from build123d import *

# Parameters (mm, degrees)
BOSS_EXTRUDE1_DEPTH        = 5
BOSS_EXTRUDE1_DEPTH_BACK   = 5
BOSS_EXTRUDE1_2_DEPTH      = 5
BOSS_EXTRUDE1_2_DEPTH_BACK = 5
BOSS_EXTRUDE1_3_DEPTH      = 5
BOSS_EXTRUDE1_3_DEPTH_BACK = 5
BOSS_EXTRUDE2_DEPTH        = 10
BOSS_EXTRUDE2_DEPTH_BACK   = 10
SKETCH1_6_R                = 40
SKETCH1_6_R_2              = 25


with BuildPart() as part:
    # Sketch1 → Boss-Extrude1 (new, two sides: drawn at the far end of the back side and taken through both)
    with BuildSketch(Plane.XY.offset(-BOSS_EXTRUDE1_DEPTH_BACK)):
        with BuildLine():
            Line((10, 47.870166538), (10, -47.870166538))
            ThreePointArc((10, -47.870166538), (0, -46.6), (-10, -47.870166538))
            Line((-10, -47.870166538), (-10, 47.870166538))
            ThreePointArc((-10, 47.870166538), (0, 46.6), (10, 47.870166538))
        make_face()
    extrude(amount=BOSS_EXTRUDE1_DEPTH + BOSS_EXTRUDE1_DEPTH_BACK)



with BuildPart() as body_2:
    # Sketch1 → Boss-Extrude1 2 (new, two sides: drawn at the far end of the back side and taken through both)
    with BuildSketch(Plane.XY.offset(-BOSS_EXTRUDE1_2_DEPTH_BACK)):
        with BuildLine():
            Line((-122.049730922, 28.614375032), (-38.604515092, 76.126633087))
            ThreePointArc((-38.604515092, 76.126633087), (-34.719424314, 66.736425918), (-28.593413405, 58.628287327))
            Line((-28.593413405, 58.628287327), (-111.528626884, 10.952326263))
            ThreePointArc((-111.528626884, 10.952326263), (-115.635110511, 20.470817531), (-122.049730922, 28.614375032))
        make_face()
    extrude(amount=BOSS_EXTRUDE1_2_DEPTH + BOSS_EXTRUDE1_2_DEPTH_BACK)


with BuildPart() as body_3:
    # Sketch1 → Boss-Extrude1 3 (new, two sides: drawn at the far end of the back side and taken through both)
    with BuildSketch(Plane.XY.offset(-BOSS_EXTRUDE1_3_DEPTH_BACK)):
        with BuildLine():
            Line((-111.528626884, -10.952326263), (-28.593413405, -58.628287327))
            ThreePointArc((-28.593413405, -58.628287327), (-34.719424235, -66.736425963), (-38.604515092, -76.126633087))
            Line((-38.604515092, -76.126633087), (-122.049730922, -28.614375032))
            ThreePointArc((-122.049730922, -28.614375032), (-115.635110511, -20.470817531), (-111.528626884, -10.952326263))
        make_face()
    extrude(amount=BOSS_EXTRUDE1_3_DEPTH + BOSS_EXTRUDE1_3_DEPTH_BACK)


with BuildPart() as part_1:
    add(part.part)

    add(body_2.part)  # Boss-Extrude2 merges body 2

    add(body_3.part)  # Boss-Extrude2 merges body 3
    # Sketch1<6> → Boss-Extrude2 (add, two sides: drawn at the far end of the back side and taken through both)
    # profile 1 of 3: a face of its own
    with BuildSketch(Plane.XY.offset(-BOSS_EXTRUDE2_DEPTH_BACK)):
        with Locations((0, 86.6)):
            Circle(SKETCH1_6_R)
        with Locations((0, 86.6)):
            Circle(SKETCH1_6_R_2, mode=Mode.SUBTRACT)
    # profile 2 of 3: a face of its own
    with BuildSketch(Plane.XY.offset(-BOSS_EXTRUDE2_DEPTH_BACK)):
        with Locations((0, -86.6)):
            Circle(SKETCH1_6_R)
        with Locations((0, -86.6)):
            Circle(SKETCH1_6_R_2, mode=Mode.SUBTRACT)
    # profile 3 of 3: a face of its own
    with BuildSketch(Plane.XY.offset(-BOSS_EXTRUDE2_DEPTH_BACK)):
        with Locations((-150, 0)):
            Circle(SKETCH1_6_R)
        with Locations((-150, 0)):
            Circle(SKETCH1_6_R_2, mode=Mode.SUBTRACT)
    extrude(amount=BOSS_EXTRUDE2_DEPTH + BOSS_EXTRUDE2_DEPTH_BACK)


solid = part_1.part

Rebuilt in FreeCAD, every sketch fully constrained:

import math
import FreeCAD as App
import Part
import Sketcher
Q = App.Units.Quantity

doc = App.newDocument("Part")
body = doc.addObject("PartDesign::Body", "Body")

sketch1 = doc.addObject("Sketcher::SketchObject", "Sketch")
body.addObject(sketch1)
sketch1.AttachmentSupport = (doc.XY_Plane, [""])
sketch1.MapMode = "FlatFace"
sketch1.addGeometry([
    Part.LineSegment(App.Vector(10, -47.870167, 0), App.Vector(10, 47.870167, 0)),
    Part.ArcOfCircle(Part.Circle(App.Vector(0, 86.6, 0), App.Vector(0, 0, 1), 40), math.radians(-104.477512), math.radians(-75.522488)),
    Part.LineSegment(App.Vector(-10, 47.870167, 0), App.Vector(-10, -47.870167, 0)),
    Part.ArcOfCircle(Part.Circle(App.Vector(0, -86.6, 0), App.Vector(0, 0, 1), 40), math.radians(75.522488), math.radians(104.477512)),
], False)
sketch1.addConstraint([
    Sketcher.Constraint("Coincident", 0, 2, 1, 2),
    Sketcher.Constraint("Coincident", 1, 1, 2, 1),
    Sketcher.Constraint("Coincident", 2, 2, 3, 2),
    Sketcher.Constraint("Coincident", 3, 1, 0, 1),
    Sketcher.Constraint("Vertical", 0),
    Sketcher.Constraint("Vertical", 2),
    Sketcher.Constraint("Equal", 1, 3),
    Sketcher.Constraint("Symmetric", 1, 3, 3, 3, -1, 1),
    Sketcher.Constraint("Symmetric", 0, 2, 1, 1, -2),
    Sketcher.Constraint("Radius", 1, Q("40 mm")),
    Sketcher.Constraint("DistanceX", -1, 1, 0, 2, Q("10 mm")),
    Sketcher.Constraint("DistanceY", -1, 1, 1, 3, Q("86.6 mm")),
])
pad1 = doc.addObject("PartDesign::Pad", "Pad")
body.addObject(pad1)
pad1.Profile = sketch1
pad1.Type = "TwoLengths"
pad1.Length = 5
pad1.Length2 = 5
body2 = doc.addObject("PartDesign::Body", "Body001")

sketch2 = doc.addObject("Sketcher::SketchObject", "Sketch001")
body2.addObject(sketch2)
sketch2.AttachmentSupport = (doc.getObject("XY_Plane001"), [""])
sketch2.MapMode = "FlatFace"
sketch2.addGeometry([
    Part.LineSegment(App.Vector(-38.604515, 76.126633, 0), App.Vector(-122.049731, 28.614375, 0)),
    Part.ArcOfCircle(Part.Circle(App.Vector(-150, 0, 0), App.Vector(0, 0, 1), 40), math.radians(15.891001), math.radians(45.672659)),
    Part.LineSegment(App.Vector(-111.528627, 10.952326, 0), App.Vector(-28.593413, 58.628287, 0)),
    Part.ArcOfCircle(Part.Circle(App.Vector(0, 86.6, 0), App.Vector(0, 0, 1), 40), math.radians(-164.821077), math.radians(-135.629706)),
], False)
sketch2.addConstraint([
    Sketcher.Constraint("Coincident", 0, 2, 1, 2),
    Sketcher.Constraint("Coincident", 1, 1, 2, 1),
    Sketcher.Constraint("Coincident", 2, 2, 3, 2),
    Sketcher.Constraint("Coincident", 3, 1, 0, 1),
    Sketcher.Constraint("Equal", 1, 3),
    Sketcher.Constraint("PointOnObject", 1, 3, -1),
    Sketcher.Constraint("PointOnObject", 3, 3, -2),
    Sketcher.Constraint("Radius", 1, Q("40 mm")),
    Sketcher.Constraint("DistanceX", 1, 3, -1, 1, Q("150 mm")),
    Sketcher.Constraint("DistanceY", -1, 1, 3, 3, Q("86.6 mm")),
    Sketcher.Constraint("DistanceX", 3, 1, 2, 2, Q("10.011102 mm")),
    Sketcher.Constraint("Distance", 2, Q("95.66215 mm")),
    Sketcher.Constraint("DistanceX", 0, 2, -1, 1, Q("122.049731 mm")),
    Sketcher.Constraint("DistanceY", 1, 1, 0, 2, Q("17.662049 mm")),
])
pad2 = doc.addObject("PartDesign::Pad", "Pad001")
body2.addObject(pad2)
pad2.Profile = sketch2
pad2.Type = "TwoLengths"
pad2.Length = 5
pad2.Length2 = 5
body3 = doc.addObject("PartDesign::Body", "Body002")

sketch3 = doc.addObject("Sketcher::SketchObject", "Sketch002")
body3.addObject(sketch3)
sketch3.AttachmentSupport = (doc.getObject("XY_Plane002"), [""])
sketch3.MapMode = "FlatFace"
sketch3.addGeometry([
    Part.LineSegment(App.Vector(-28.593413, -58.628287, 0), App.Vector(-111.528627, -10.952326, 0)),
    Part.ArcOfCircle(Part.Circle(App.Vector(-150, 0, 0), App.Vector(0, 0, 1), 40), math.radians(-45.672659), math.radians(-15.891001)),
    Part.LineSegment(App.Vector(-122.049731, -28.614375, 0), App.Vector(-38.604515, -76.126633, 0)),
    Part.ArcOfCircle(Part.Circle(App.Vector(0.000002, -86.600001, 0), App.Vector(0, 0, 1), 40.000003), math.radians(135.629707), math.radians(164.821076)),
], False)
sketch3.addConstraint([
    Sketcher.Constraint("Coincident", 0, 2, 1, 2),
    Sketcher.Constraint("Coincident", 1, 1, 2, 1),
    Sketcher.Constraint("Coincident", 2, 2, 3, 2),
    Sketcher.Constraint("Coincident", 3, 1, 0, 1),
    Sketcher.Constraint("PointOnObject", 1, 3, -1),
    Sketcher.Constraint("Radius", 1, Q("40 mm")),
    Sketcher.Constraint("DistanceX", 1, 3, -1, 1, Q("150 mm")),
    Sketcher.Constraint("DistanceY", 3, 3, -1, 1, Q("86.600001 mm")),
    Sketcher.Constraint("Radius", 3, Q("40.000003 mm")),
    Sketcher.Constraint("DistanceX", 2, 2, 3, 1, Q("10.011102 mm")),
    Sketcher.Constraint("Distance", 0, Q("95.66215 mm")),
    Sketcher.Constraint("DistanceX", 1, 1, -1, 1, Q("122.049731 mm")),
    Sketcher.Constraint("DistanceX", 0, 2, 3, 3, Q("111.528629 mm")),
    Sketcher.Constraint("DistanceY", 1, 1, 0, 2, Q("17.662049 mm")),
])
pad3 = doc.addObject("PartDesign::Pad", "Pad002")
body3.addObject(pad3)
pad3.Profile = sketch3
pad3.Type = "TwoLengths"
pad3.Length = 5
pad3.Length2 = 5
body.AllowCompound = True
doc.recompute()

boolean = doc.addObject("PartDesign::Boolean", "Boolean")
body.addObject(boolean)
boolean.Type = "Fuse"
boolean.addObjects([body2])
doc.recompute()

boolean2 = doc.addObject("PartDesign::Boolean", "Boolean001")
body.addObject(boolean2)
boolean2.Type = "Fuse"
boolean2.addObjects([body3])

sketch4 = doc.addObject("Sketcher::SketchObject", "Sketch003")
body.addObject(sketch4)
sketch4.AttachmentSupport = (doc.XY_Plane, [""])
sketch4.MapMode = "FlatFace"
sketch4.addGeometry([
    Part.Circle(App.Vector(0, 86.6, 0), App.Vector(0, 0, 1), 40),
    Part.Circle(App.Vector(0, 86.6, 0), App.Vector(0, 0, 1), 25),
    Part.Circle(App.Vector(0, -86.6, 0), App.Vector(0, 0, 1), 40),
    Part.Circle(App.Vector(0, -86.6, 0), App.Vector(0, 0, 1), 25),
    Part.Circle(App.Vector(-150, 0, 0), App.Vector(0, 0, 1), 40),
    Part.Circle(App.Vector(-150, 0, 0), App.Vector(0, 0, 1), 25),
], False)
sketch4.addConstraint([
    Sketcher.Constraint("Coincident", 1, 3, 0, 3),
    Sketcher.Constraint("Coincident", 3, 3, 2, 3),
    Sketcher.Constraint("Coincident", 5, 3, 4, 3),
    Sketcher.Constraint("Equal", 0, 2),
    Sketcher.Constraint("Equal", 1, 3),
    Sketcher.Constraint("Equal", 2, 4),
    Sketcher.Constraint("Equal", 3, 5),
    Sketcher.Constraint("Symmetric", 0, 3, 2, 3, -1, 1),
    Sketcher.Constraint("PointOnObject", 0, 3, -2),
    Sketcher.Constraint("PointOnObject", 4, 3, -1),
    Sketcher.Constraint("Diameter", 0, Q("80 mm")),
    Sketcher.Constraint("Diameter", 1, Q("50 mm")),
    Sketcher.Constraint("DistanceX", 4, 3, -1, 1, Q("150 mm")),
    Sketcher.Constraint("DistanceY", -1, 1, 0, 3, Q("86.6 mm")),
])
pad4 = doc.addObject("PartDesign::Pad", "Pad003")
body.addObject(pad4)
pad4.Profile = sketch4
pad4.Type = "TwoLengths"
pad4.Length = 10
pad4.Length2 = 10

doc.recompute()
